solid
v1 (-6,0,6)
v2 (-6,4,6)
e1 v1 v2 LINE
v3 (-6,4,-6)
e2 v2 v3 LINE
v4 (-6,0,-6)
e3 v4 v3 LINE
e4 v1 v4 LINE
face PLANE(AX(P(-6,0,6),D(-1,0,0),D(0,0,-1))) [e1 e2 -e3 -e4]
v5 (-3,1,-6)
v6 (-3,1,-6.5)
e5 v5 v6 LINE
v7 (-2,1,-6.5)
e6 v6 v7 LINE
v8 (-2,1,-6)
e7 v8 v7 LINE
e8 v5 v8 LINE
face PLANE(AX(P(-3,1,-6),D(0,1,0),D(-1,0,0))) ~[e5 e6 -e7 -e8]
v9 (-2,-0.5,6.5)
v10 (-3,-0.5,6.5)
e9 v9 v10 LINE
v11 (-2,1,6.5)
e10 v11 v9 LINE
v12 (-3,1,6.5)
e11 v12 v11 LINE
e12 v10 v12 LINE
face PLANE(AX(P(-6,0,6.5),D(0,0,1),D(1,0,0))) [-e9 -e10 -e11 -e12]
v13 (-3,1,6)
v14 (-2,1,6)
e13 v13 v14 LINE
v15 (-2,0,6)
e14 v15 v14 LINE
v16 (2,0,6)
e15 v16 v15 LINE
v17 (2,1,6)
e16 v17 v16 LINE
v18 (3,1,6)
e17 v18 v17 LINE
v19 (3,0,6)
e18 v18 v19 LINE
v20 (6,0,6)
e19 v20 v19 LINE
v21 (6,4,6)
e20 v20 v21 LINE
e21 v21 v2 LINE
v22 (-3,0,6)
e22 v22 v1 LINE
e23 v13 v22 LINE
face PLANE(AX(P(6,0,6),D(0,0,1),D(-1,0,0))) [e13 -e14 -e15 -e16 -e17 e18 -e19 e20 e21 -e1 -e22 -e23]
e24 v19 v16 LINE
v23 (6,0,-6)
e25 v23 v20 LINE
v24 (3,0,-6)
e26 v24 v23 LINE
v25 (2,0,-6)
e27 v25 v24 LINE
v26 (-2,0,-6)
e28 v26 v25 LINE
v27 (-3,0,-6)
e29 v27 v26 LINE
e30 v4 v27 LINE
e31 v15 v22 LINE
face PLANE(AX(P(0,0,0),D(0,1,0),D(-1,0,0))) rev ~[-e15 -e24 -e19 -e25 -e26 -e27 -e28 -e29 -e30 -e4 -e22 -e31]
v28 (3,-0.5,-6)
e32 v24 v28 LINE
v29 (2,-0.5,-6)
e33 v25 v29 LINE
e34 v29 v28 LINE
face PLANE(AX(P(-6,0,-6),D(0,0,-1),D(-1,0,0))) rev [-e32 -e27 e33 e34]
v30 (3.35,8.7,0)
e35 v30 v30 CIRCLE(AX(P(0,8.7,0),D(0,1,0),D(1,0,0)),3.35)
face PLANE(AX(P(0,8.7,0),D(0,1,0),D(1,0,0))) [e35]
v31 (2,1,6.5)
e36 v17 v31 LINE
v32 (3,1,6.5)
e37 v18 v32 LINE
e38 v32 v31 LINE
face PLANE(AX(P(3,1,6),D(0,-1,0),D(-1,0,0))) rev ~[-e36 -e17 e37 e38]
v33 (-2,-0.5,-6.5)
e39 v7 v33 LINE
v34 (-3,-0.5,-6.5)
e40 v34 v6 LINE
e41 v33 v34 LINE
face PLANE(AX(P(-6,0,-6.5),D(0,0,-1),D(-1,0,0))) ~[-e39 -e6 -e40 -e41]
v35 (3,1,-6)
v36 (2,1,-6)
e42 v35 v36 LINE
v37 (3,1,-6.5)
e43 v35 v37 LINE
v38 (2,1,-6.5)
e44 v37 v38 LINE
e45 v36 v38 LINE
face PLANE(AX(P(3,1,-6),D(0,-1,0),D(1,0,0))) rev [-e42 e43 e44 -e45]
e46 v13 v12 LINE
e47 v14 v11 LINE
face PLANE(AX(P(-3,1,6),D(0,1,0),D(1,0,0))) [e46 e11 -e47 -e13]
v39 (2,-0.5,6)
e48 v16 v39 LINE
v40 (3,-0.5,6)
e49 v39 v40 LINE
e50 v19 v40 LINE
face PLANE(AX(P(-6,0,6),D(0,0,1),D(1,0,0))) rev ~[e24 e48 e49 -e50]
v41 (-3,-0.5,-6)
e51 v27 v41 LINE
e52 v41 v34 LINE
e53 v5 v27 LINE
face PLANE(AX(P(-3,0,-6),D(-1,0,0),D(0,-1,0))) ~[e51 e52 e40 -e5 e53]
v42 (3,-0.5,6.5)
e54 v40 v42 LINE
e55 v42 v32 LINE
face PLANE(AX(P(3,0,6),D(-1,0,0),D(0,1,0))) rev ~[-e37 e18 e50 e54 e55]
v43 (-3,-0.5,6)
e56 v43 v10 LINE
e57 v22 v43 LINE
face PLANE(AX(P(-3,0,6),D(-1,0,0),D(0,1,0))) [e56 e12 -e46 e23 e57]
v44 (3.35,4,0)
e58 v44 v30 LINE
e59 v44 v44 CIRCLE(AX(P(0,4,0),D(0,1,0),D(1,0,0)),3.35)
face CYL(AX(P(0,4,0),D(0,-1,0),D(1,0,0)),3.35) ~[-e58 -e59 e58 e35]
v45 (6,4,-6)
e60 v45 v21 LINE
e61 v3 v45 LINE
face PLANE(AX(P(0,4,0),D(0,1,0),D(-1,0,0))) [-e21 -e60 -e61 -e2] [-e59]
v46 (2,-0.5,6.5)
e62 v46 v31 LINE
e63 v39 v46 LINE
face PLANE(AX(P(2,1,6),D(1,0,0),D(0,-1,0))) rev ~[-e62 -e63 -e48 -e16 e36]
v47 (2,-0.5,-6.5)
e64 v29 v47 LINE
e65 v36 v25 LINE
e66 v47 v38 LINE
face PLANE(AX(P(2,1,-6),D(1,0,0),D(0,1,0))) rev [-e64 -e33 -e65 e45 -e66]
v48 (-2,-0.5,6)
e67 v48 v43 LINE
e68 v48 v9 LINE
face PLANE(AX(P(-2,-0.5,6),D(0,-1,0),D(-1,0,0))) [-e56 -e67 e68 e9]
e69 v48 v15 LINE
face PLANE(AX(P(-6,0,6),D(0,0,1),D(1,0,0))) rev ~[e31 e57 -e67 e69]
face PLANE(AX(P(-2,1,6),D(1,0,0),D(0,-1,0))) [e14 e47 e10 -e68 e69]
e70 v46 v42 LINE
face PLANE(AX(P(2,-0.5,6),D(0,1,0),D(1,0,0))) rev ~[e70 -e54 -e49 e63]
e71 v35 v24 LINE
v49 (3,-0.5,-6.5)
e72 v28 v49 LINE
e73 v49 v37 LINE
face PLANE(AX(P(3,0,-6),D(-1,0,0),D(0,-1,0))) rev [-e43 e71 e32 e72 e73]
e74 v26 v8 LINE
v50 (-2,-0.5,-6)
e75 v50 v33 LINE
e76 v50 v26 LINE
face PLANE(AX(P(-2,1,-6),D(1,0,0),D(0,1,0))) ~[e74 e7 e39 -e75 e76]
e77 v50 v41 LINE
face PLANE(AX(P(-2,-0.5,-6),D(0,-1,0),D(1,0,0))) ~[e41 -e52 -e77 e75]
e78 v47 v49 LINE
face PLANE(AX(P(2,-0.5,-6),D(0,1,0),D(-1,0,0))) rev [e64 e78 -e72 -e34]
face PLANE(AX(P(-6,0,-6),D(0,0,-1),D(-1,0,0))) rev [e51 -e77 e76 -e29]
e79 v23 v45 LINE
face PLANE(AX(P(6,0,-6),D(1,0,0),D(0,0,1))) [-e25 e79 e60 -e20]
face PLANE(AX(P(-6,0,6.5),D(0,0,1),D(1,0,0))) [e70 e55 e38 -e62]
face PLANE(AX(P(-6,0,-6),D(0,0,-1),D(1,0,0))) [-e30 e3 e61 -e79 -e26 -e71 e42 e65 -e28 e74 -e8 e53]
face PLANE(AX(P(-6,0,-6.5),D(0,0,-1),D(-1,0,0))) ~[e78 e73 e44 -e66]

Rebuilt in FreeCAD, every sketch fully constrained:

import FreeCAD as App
import Part
import Sketcher

V = App.Vector
Q = App.Units.Quantity


def add_polygon(sketch, points):
    """Adds a closed chain of lines whose ends are joined by coincident constraints."""
    first, n = sketch.GeometryCount, len(points)
    for a, b in zip(points, points[1:] + points[:1]):
        sketch.addGeometry(Part.LineSegment(App.Vector(*a, 0), App.Vector(*b, 0)), False)
    for i in range(n):
        sketch.addConstraint(Sketcher.Constraint("Coincident", first + i, 2, first + (i + 1) % n, 1))

doc = App.newDocument("Part")
params = doc.addObject("Spreadsheet::Sheet", "Params")
for row, (alias, value) in enumerate([
    ("sketch1_width", "12 mm"),
    ("pad1_length", "4 mm"),
    ("sketch2_diameter", "6.7 mm"),
    ("pad2_length", "4.7 mm"),
    ("sketch3_width", "1 mm"),
    ("sketch3_height", "1.5 mm"),
    ("pad3_length", "0.5 mm"),
], start=1):
    params.set(f"A{row}", alias)
    params.set(f"B{row}", "=" + value)
    params.setAlias(f"B{row}", alias)

body = doc.addObject("PartDesign::Body", "Body")

# Sketch on XZ plane
sketch1 = body.newObject("Sketcher::SketchObject", "Sketch")
sketch1.AttachmentSupport = (doc.getObject("XZ_Plane"), [""])
sketch1.MapMode = "FlatFace"
add_polygon(sketch1, [(-6, 6), (6, 6), (6, -6), (-6, -6)])  # lines 0-3
sketch1.addConstraint([
    Sketcher.Constraint("Horizontal", 0),
    Sketcher.Constraint("Vertical", 1),
    Sketcher.Constraint("Horizontal", 2),
    Sketcher.Constraint("Vertical", 3),
    Sketcher.Constraint("Symmetric", 0, 2, 2, 2, -1, 1),
    Sketcher.Constraint("Equal", 2, 1),
    Sketcher.Constraint("DistanceX", 0, 1, 0, 2, Q("12 mm")),
])
sketch1.setExpression("Constraints[10]", "Params.sketch1_width")
pad1 = body.newObject("PartDesign::Pad", "Pad")
pad1.Profile = sketch1
pad1.setExpression("Length", "Params.pad1_length")
pad1.Reversed = True

# Sketch on XZ plane
sketch2 = body.newObject("Sketcher::SketchObject", "Sketch001")
sketch2.AttachmentSupport = (doc.getObject("XZ_Plane"), [""])
sketch2.MapMode = "FlatFace"
sketch2.AttachmentOffset = App.Placement(V(0, 0, -4), App.Rotation())
sketch2.addGeometry(Part.Circle(V(0, 0, 0), V(0, 0, 1), 3.4), False)
sketch2.addConstraint([
    Sketcher.Constraint("Coincident", 0, 3, -1, 1),
    Sketcher.Constraint("Diameter", 0, Q("6.7 mm")),
])
sketch2.setExpression("Constraints[1]", "Params.sketch2_diameter")
pad2 = body.newObject("PartDesign::Pad", "Pad001")
pad2.Profile = sketch2
pad2.setExpression("Length", "Params.pad2_length")
pad2.Reversed = True

# Sketch on XY plane
sketch3 = body.newObject("Sketcher::SketchObject", "Sketch002")
sketch3.AttachmentSupport = (doc.getObject("XY_Plane"), [""])
sketch3.MapMode = "FlatFace"
sketch3.AttachmentOffset = App.Placement(V(0, 0, 6), App.Rotation())
add_polygon(sketch3, [(2, 1), (2, -0.5), (3, -0.5), (3, 1)])  # lines 0-3
add_polygon(sketch3, [(-2, 1), (-3, 1), (-3, -0.5), (-2, -0.5)])  # lines 4-7
sketch3.addConstraint([
    Sketcher.Constraint("Vertical", 0),
    Sketcher.Constraint("Horizontal", 1),
    Sketcher.Constraint("Vertical", 2),
    Sketcher.Constraint("Horizontal", 3),
    Sketcher.Constraint("Horizontal", 4),
    Sketcher.Constraint("Vertical", 5),
    Sketcher.Constraint("Horizontal", 6),
    Sketcher.Constraint("Vertical", 7),
    Sketcher.Constraint("Symmetric", 2, 2, 4, 2, -2),
    Sketcher.Constraint("Symmetric", 0, 2, 6, 2, -2),
    Sketcher.Constraint("DistanceX", 1, 1, 1, 2, Q("1 mm")),
    Sketcher.Constraint("DistanceY", 0, 2, 0, 1, Q("1.5 mm")),
    Sketcher.Constraint("DistanceX", -1, 1, 1, 2, Q("3 mm")),
    Sketcher.Constraint("DistanceY", -1, 1, 2, 2, Q("1 mm")),
])
sketch3.setExpression("Constraints[18]", "Params.sketch3_width")
sketch3.setExpression("Constraints[19]", "Params.sketch3_height")
pad3 = body.newObject("PartDesign::Pad", "Pad002")
pad3.Profile = sketch3
pad3.setExpression("Length", "Params.pad3_length")
doc.recompute()

mirrored = body.newObject("PartDesign::Mirrored", "Mirrored")
mirrored.Originals = [pad3]
mirrored.MirrorPlane = (doc.getObject("XY_Plane"), [""])
body.Tip = mirrored

doc.recompute()
